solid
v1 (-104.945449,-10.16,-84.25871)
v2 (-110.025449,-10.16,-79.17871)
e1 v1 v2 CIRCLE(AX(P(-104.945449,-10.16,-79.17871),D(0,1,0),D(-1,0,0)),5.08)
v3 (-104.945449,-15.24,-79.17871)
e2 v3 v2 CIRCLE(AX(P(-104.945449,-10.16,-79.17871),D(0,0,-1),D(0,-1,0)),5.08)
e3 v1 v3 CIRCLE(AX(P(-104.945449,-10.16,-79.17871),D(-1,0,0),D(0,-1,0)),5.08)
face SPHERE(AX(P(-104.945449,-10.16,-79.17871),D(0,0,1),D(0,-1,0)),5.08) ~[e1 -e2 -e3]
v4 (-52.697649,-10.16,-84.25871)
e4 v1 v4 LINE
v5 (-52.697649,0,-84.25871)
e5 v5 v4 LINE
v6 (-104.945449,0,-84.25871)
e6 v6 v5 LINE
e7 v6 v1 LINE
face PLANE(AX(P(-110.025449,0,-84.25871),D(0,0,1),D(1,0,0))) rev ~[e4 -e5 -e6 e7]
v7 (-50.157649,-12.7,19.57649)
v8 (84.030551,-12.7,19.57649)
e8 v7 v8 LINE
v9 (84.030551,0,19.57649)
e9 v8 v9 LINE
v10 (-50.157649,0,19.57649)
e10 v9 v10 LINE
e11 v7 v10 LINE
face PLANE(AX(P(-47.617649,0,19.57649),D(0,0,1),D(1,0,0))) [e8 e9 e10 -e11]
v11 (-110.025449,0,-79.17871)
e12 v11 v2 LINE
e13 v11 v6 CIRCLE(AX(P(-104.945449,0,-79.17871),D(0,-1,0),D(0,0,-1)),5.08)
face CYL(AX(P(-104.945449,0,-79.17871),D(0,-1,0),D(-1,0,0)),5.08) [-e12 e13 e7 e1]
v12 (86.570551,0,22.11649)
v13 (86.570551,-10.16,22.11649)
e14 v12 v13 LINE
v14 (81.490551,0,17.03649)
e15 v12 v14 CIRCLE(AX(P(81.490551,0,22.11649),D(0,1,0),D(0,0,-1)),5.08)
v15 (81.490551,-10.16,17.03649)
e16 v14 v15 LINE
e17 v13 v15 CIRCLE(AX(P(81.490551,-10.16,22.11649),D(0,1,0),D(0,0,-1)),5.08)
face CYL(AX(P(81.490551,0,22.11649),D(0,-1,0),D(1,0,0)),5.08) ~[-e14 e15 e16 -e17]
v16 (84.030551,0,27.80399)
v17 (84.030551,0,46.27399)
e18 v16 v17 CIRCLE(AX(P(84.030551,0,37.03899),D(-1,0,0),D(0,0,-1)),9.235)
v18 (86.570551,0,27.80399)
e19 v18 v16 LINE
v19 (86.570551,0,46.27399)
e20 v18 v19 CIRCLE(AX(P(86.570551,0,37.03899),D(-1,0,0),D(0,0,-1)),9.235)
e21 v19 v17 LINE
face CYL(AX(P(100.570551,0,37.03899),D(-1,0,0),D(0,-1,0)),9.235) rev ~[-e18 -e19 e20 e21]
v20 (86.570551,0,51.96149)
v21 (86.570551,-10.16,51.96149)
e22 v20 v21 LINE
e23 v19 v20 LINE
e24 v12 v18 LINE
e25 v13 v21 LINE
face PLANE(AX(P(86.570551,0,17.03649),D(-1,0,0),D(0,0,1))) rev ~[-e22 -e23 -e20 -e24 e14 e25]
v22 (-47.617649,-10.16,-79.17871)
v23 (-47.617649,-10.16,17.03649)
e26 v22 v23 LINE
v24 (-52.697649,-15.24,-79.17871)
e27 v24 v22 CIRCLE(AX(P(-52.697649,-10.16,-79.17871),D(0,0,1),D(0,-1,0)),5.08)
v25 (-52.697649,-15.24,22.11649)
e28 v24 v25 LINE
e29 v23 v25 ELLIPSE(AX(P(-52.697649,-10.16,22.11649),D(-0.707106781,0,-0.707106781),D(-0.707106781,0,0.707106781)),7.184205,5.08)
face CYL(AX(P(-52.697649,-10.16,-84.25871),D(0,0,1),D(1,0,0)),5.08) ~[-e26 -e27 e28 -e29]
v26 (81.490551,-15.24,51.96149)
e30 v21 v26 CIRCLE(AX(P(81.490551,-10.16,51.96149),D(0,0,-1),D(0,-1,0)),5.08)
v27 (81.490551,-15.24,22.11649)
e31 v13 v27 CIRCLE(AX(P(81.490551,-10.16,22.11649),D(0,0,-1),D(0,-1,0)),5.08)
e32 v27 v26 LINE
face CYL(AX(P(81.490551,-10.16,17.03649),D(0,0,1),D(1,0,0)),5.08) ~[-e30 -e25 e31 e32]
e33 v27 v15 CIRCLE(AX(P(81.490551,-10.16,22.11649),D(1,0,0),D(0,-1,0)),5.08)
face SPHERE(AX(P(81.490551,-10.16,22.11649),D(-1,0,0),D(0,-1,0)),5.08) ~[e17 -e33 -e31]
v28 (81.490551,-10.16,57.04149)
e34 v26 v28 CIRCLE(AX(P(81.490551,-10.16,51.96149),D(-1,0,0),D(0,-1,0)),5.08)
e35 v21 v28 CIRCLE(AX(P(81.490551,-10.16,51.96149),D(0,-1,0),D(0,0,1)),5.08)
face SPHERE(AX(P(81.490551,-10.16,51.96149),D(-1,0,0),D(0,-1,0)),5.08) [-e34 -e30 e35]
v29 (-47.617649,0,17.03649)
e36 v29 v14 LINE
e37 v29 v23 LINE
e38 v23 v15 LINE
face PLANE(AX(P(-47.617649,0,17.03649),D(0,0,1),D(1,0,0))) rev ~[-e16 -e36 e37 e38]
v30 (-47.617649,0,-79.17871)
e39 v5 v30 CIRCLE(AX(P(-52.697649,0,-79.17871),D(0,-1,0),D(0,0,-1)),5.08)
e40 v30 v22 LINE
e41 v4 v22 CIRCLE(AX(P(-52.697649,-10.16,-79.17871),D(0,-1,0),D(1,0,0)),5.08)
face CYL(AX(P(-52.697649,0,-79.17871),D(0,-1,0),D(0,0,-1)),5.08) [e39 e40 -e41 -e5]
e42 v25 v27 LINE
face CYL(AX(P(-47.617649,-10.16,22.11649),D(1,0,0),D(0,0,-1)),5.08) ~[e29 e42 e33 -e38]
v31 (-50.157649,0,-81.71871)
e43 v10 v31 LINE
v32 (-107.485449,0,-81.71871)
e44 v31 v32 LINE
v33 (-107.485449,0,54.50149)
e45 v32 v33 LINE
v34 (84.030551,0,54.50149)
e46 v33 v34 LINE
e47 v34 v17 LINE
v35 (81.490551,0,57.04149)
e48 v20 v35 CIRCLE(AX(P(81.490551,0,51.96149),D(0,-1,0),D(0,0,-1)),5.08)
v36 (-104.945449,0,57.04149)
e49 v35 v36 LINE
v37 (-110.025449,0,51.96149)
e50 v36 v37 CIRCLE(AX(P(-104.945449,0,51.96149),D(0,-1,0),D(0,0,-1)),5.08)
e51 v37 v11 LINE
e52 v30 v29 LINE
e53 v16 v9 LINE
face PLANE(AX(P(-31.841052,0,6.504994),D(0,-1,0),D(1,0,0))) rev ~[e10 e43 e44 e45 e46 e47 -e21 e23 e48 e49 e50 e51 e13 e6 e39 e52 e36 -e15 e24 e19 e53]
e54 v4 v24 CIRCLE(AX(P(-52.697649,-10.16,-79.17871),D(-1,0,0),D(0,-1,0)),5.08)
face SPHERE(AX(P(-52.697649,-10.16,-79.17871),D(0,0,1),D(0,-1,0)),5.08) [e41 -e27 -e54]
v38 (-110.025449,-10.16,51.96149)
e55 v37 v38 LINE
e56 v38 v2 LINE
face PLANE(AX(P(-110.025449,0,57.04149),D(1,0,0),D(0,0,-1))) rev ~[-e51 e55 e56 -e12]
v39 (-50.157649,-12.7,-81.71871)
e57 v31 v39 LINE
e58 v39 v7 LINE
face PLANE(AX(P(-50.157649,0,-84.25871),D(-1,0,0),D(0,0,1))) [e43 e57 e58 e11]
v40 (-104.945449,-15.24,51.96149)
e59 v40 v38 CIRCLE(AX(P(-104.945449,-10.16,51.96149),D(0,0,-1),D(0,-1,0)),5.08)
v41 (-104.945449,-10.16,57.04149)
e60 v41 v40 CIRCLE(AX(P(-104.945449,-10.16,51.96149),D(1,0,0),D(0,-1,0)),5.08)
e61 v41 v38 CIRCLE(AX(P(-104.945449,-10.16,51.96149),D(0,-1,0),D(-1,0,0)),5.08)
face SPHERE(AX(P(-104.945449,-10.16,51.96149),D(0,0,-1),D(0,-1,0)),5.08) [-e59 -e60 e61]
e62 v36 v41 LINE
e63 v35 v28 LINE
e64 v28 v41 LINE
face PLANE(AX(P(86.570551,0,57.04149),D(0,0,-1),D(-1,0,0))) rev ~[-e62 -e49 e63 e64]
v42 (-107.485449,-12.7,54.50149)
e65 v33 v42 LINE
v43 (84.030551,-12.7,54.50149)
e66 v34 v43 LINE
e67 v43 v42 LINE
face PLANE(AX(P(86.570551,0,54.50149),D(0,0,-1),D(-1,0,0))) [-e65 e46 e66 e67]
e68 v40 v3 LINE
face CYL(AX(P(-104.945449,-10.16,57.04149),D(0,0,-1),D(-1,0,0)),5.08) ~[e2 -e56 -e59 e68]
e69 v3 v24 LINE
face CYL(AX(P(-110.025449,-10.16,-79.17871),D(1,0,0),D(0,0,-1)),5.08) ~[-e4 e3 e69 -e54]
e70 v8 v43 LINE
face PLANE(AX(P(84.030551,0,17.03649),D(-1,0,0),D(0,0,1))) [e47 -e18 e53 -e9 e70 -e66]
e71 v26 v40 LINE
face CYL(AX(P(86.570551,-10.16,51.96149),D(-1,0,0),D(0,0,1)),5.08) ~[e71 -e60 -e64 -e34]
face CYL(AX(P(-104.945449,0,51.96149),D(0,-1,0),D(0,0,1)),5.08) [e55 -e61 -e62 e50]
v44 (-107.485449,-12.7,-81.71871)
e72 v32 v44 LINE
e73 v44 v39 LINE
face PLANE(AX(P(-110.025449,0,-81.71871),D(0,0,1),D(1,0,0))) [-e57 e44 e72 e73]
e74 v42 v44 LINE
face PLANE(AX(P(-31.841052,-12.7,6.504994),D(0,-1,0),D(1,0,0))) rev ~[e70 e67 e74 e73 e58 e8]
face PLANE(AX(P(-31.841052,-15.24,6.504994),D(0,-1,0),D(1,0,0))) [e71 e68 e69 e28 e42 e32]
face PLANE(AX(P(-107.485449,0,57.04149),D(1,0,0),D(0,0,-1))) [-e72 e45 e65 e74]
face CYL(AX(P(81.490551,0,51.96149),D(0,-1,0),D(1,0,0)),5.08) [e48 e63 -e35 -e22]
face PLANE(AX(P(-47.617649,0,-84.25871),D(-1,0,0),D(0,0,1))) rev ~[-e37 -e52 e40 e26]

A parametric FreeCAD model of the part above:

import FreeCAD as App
import Part
import Sketcher
Q = App.Units.Quantity


def edges_at(feature, points):
    """Names of the edges that pass closest to the given points."""
    edges = feature.Shape.Edges
    near = lambda p: min(range(len(edges)), key=lambda i: edges[i].distToShape(Part.Vertex(*p))[0])
    return sorted({f"Edge{near(p) + 1}" for p in points})


def faces_at(feature, points):
    """Names of the faces that lie closest to the given points."""
    faces = feature.Shape.Faces
    near = lambda p: min(range(len(faces)), key=lambda i: faces[i].distToShape(Part.Vertex(*p))[0])
    return sorted({f"Face{near(p) + 1}" for p in points})

doc = App.newDocument("Part")
body = doc.addObject("PartDesign::Body", "Body")

# Sketch on XZ plane
sketch1 = body.newObject("Sketcher::SketchObject", "Sketch")
sketch1.AttachmentSupport = (doc.getObject("XZ_Plane"), [""])
sketch1.MapMode = "FlatFace"
sketch1.addGeometry([
    Part.LineSegment(App.Vector(87, 17, 0), App.Vector(87, 57, 0)),  # 0
    Part.LineSegment(App.Vector(87, 57, 0), App.Vector(-110, 57, 0)),  # 1
    Part.LineSegment(App.Vector(-110, 57, 0), App.Vector(-110, -84, 0)),  # 2
    Part.LineSegment(App.Vector(-110, -84, 0), App.Vector(-48, -84, 0)),  # 3
    Part.LineSegment(App.Vector(-48, -84, 0), App.Vector(-48, 17, 0)),  # 4
    Part.LineSegment(App.Vector(-48, 17, 0), App.Vector(87, 17, 0)),  # 5
], False)
sketch1.addConstraint([
    Sketcher.Constraint("Coincident", 0, 2, 1, 1),
    Sketcher.Constraint("Coincident", 1, 2, 2, 1),
    Sketcher.Constraint("Coincident", 2, 2, 3, 1),
    Sketcher.Constraint("Coincident", 3, 2, 4, 1),
    Sketcher.Constraint("Coincident", 4, 2, 5, 1),
    Sketcher.Constraint("Coincident", 5, 2, 0, 1),
    Sketcher.Constraint("Vertical", 0),
    Sketcher.Constraint("Horizontal", 1),
    Sketcher.Constraint("Vertical", 2),
    Sketcher.Constraint("Horizontal", 3),
    Sketcher.Constraint("Vertical", 4),
    Sketcher.Constraint("Horizontal", 5),
    Sketcher.Constraint("DistanceX", 1, 2, 1, 1, Q("7.74 in")),
    Sketcher.Constraint("DistanceX", 3, 1, 3, 2, Q("2.457 in")),
    Sketcher.Constraint("DistanceY", 0, 1, 0, 2, Q("1.575 in")),
    Sketcher.Constraint("DistanceY", 2, 2, 2, 1, Q("5.563 in")),
    Sketcher.Constraint("DistanceX", -1, 1, 0, 2, Q("86.570551 mm")),
    Sketcher.Constraint("DistanceY", -1, 1, 0, 2, Q("57.04149 mm")),
])
pad1 = body.newObject("PartDesign::Pad", "Pad")
pad1.Profile = sketch1
pad1.Length = Q("0.6 in")
doc.recompute()

thickness = body.newObject("PartDesign::Thickness", "Thickness")
thickness.Base = (pad1, faces_at(pad1, [(-51.047, 0, -41.869)]))
thickness.Value = Q("0.1 in")
thickness.Reversed = True
thickness.Join = "Intersection"
doc.recompute()

fillet = body.newObject("PartDesign::Fillet", "Fillet")
fillet.Base = (thickness, edges_at(thickness, [
    (-110.025, -15.24, -13.609),
    (-47.618, -15.24, -33.611),
    (-78.822, -15.24, -84.259),
    (-110.025, -7.62, -84.259),
    (-11.727, -15.24, 57.041),
    (19.476, -15.24, 17.036),
    (-110.025, -7.62, 57.041),
    (86.571, -15.24, 37.039),
    (86.571, -7.62, 57.041),
    (86.571, -7.62, 17.036),
    (-47.618, -7.62, -84.259),
]))
fillet.Radius = Q("0.2 in")

# Sketch on YZ plane
sketch2 = body.newObject("Sketcher::SketchObject", "Sketch001")
sketch2.AttachmentSupport = (doc.getObject("YZ_Plane"), [""])
sketch2.MapMode = "FlatFace"
sketch2.AttachmentOffset = App.Placement(App.Vector(0, 0, 86.570551), App.Rotation())
sketch2.addGeometry(Part.Circle(App.Vector(0, 37, 0), App.Vector(0, 0, 1), 9), False)
sketch2.addConstraint([
    Sketcher.Constraint("PointOnObject", 0, 3, -2),
    Sketcher.Constraint("Diameter", 0, Q("18.47 mm")),
    Sketcher.Constraint("DistanceY", -1, 1, 0, 3, Q("37.03899 mm")),
])
doc.recompute()
hole = body.newObject("PartDesign::Hole", "Hole")
hole.Profile = sketch2
hole.ThreadType = "None"
hole.Diameter = 18.47
hole.DepthType = "Dimension"
hole.Depth = 14
hole.DrillPoint = "Angled"
hole.DrillPointAngle = 118

doc.recompute()
